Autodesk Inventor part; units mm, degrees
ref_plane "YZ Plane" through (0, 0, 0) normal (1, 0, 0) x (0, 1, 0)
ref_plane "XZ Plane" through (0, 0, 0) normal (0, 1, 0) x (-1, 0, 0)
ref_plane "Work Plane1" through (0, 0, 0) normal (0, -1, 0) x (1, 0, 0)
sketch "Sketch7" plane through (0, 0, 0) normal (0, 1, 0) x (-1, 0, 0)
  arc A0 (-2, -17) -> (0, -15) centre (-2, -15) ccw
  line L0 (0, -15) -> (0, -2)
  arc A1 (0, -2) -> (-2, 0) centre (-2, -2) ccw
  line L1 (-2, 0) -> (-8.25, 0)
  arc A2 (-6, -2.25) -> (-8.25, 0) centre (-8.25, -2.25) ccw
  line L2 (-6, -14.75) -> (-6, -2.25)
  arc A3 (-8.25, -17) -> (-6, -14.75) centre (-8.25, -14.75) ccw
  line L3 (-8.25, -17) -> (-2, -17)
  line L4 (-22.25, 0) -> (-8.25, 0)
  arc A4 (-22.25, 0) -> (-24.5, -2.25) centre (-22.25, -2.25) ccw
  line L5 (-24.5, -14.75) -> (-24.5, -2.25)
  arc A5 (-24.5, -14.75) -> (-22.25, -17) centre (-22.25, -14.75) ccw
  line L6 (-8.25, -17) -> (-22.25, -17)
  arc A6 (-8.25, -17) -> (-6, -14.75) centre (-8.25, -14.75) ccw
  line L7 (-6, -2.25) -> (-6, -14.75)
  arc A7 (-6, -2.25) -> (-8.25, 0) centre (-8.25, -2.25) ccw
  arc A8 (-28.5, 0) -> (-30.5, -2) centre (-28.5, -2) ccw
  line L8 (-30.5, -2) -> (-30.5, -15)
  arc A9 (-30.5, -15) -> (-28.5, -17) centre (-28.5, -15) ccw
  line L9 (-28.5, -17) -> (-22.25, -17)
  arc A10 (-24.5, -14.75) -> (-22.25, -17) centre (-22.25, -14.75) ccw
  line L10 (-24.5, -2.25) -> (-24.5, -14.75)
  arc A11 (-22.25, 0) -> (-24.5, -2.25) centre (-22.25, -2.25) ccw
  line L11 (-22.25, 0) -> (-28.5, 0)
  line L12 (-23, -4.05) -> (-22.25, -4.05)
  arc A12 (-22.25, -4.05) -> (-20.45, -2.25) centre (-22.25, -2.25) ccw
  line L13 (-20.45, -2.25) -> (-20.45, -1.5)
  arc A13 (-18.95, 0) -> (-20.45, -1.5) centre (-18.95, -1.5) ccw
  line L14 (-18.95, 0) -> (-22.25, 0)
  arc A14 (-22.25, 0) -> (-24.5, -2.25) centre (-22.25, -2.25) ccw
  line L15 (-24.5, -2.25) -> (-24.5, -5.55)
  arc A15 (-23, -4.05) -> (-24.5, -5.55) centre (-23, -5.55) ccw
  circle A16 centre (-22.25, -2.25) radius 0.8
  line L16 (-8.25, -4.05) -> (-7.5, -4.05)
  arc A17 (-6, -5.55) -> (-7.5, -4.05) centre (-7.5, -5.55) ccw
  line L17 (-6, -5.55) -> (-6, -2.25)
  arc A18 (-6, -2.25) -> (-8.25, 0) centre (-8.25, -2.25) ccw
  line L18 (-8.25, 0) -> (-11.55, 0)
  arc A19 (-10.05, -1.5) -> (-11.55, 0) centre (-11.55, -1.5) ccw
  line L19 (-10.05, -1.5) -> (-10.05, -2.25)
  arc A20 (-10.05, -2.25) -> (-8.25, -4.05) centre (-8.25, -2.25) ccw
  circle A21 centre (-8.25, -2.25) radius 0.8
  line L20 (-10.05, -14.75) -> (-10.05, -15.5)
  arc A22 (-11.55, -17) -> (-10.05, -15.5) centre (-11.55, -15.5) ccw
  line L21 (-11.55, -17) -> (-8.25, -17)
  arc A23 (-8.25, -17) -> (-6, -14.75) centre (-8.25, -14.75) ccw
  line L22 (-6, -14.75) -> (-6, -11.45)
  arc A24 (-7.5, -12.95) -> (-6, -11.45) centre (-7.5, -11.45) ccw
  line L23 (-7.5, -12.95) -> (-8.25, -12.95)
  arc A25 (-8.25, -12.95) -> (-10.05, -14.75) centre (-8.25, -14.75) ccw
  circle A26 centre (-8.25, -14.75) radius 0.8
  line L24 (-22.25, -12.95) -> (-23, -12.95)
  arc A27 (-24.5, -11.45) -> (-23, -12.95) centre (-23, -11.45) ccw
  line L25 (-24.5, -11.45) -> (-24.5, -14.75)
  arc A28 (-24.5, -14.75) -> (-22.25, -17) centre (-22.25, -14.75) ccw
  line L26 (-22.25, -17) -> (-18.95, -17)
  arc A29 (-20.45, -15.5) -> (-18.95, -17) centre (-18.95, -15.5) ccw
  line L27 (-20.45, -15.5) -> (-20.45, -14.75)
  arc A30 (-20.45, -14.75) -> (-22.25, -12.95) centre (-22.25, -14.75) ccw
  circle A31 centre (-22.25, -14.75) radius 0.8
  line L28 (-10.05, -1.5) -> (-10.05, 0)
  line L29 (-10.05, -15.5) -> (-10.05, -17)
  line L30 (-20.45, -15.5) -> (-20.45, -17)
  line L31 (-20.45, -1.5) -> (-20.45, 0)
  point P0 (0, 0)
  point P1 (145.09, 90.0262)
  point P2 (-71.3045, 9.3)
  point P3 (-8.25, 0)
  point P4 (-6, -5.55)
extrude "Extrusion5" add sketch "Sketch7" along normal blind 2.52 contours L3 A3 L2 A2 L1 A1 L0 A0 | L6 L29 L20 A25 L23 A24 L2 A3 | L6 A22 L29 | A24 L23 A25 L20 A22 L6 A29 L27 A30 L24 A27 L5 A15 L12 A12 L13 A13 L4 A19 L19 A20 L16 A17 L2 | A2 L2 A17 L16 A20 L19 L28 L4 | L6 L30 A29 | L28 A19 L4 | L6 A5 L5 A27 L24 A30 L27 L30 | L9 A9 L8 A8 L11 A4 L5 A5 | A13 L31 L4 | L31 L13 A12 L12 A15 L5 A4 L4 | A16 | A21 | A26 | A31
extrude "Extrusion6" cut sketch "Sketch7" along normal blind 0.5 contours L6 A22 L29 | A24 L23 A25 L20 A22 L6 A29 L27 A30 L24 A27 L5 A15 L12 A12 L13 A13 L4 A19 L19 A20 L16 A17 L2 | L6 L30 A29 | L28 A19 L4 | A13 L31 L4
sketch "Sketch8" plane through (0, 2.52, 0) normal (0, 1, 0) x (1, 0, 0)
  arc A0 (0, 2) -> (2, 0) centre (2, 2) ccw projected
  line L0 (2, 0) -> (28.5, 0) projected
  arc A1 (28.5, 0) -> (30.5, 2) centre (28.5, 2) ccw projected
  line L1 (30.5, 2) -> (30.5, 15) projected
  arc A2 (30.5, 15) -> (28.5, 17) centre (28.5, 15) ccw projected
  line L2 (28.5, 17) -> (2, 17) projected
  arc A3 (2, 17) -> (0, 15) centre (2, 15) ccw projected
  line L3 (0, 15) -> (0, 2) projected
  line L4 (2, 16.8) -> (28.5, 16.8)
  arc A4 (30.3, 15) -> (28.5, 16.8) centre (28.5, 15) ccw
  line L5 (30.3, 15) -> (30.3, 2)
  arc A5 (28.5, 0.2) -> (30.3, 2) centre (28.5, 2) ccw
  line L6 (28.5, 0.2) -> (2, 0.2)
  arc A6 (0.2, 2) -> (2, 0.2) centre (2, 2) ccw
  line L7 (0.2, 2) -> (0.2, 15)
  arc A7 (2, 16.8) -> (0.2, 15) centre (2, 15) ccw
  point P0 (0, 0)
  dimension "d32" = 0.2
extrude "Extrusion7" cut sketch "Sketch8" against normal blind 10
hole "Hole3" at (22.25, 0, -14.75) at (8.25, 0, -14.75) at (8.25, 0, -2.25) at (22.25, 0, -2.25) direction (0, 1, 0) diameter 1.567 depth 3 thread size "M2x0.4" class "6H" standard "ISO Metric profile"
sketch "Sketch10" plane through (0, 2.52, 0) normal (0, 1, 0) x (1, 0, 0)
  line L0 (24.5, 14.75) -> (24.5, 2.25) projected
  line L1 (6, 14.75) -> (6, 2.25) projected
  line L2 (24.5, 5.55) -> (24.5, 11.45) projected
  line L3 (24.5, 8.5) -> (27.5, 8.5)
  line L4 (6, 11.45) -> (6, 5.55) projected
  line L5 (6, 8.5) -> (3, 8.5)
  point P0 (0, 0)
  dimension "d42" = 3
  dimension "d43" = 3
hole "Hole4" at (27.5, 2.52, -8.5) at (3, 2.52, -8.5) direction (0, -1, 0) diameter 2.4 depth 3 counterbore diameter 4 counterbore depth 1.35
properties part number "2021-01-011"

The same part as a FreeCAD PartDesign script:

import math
import FreeCAD as App
import Part
import Sketcher
Q = App.Units.Quantity

doc = App.newDocument("Part")
params = doc.addObject("Spreadsheet::Sheet", "Params")
for row, (alias, value) in enumerate([
    ("sketch1_radius", "2 mm"),
    ("sketch1_height", "13 mm"),
    ("sketch1_width", "26.5 mm"),
    ("pad1_length", "2.52 mm"),
    ("sketch2_radius", "1.8 mm"),
    ("sketch2_radius2", "1.5 mm"),
    ("sketch2_width", "10.4 mm"),
    ("sketch2_height", "5.9 mm"),
    ("pocket1_length", "0.5 mm"),
    ("sketch3_radius", "2 mm"),
    ("sketch3_height", "13 mm"),
    ("sketch3_width", "26.5 mm"),
    ("pocket2_length", "10 mm"),
    ("hole_diameter", "1.567 mm"),
    ("hole_depth", "3 mm"),
    ("sketch5_diameter", "2.4 mm"),
    ("hole2_diameter", "2.4 mm"),
    ("hole2_depth", "3 mm"),
    ("hole2_cbore_diameter", "4 mm"),
    ("hole2_cbore_depth", "1.35 mm"),
], start=1):
    params.set(f"A{row}", alias)
    params.set(f"B{row}", "=" + value)
    params.setAlias(f"B{row}", alias)

body = doc.addObject("PartDesign::Body", "Body")

# Sketch on XZ plane
sketch1 = body.newObject("Sketcher::SketchObject", "Sketch")
sketch1.AttachmentSupport = (doc.getObject("XZ_Plane"), [""])
sketch1.MapMode = "FlatFace"
sketch1.addGeometry([
    Part.ArcOfCircle(Part.Circle(App.Vector(2, -15, 0), App.Vector(0, 0, 1), 2), math.radians(180), math.radians(270)),  # 0
    Part.LineSegment(App.Vector(0, -15, 0), App.Vector(0, -2, 0)),  # 1
    Part.ArcOfCircle(Part.Circle(App.Vector(2, -2, 0), App.Vector(0, 0, 1), 2), math.radians(90), math.radians(180)),  # 2
    Part.LineSegment(App.Vector(2, 0, 0), App.Vector(28.5, 0, 0)),  # 3
    Part.ArcOfCircle(Part.Circle(App.Vector(28.5, -2, 0), App.Vector(0, 0, 1), 2), math.radians(0), math.radians(90)),  # 4
    Part.LineSegment(App.Vector(30.5, -2, 0), App.Vector(30.5, -15, 0)),  # 5
    Part.ArcOfCircle(Part.Circle(App.Vector(28.5, -15, 0), App.Vector(0, 0, 1), 2), math.radians(-90), math.radians(0)),  # 6
    Part.LineSegment(App.Vector(28.5, -17, 0), App.Vector(2, -17, 0)),  # 7
], False)
sketch1.addConstraint([
    Sketcher.Constraint("Tangent", 0, 1, 1, 1),
    Sketcher.Constraint("Tangent", 1, 2, 2, 2),
    Sketcher.Constraint("Tangent", 2, 1, 3, 1),
    Sketcher.Constraint("Tangent", 3, 2, 4, 2),
    Sketcher.Constraint("Tangent", 4, 1, 5, 1),
    Sketcher.Constraint("Tangent", 5, 2, 6, 2),
    Sketcher.Constraint("Tangent", 6, 1, 7, 1),
    Sketcher.Constraint("Tangent", 7, 2, 0, 2),
    Sketcher.Constraint("Vertical", 1),
    Sketcher.Constraint("Horizontal", 3),
    Sketcher.Constraint("Vertical", 5),
    Sketcher.Constraint("Horizontal", 7),
    Sketcher.Constraint("Equal", 0, 2),
    Sketcher.Constraint("Equal", 2, 4),
    Sketcher.Constraint("Equal", 4, 6),
    Sketcher.Constraint("PointOnObject", 0, 1, -2),
    Sketcher.Constraint("PointOnObject", 2, 1, -1),
    Sketcher.Constraint("Radius", 0, Q("2 mm")),
    Sketcher.Constraint("DistanceY", 1, 1, 1, 2, Q("13 mm")),
    Sketcher.Constraint("DistanceX", 3, 1, 3, 2, Q("26.5 mm")),
])
sketch1.setExpression("Constraints[17]", "Params.sketch1_radius")
sketch1.setExpression("Constraints[18]", "Params.sketch1_height")
sketch1.setExpression("Constraints[19]", "Params.sketch1_width")
pad1 = body.newObject("PartDesign::Pad", "Pad")
pad1.Profile = sketch1
pad1.setExpression("Length", "Params.pad1_length")
pad1.Reversed = True

# Sketch on XZ plane
sketch2 = body.newObject("Sketcher::SketchObject", "Sketch001")
sketch2.AttachmentSupport = (doc.getObject("XZ_Plane"), [""])
sketch2.MapMode = "FlatFace"
sketch2.addGeometry([
    Part.LineSegment(App.Vector(10.1, -17, 0), App.Vector(10.1, -14.8, 0)),  # 0
    Part.ArcOfCircle(Part.Circle(App.Vector(8.2, -14.8, 0), App.Vector(0, 0, 1), 1.8), math.radians(0), math.radians(90)),  # 1
    Part.LineSegment(App.Vector(8.2, -12.9, 0), App.Vector(7.5, -12.9, 0)),  # 2
    Part.ArcOfCircle(Part.Circle(App.Vector(7.5, -11.4, 0), App.Vector(0, 0, 1), 1.5), math.radians(180), math.radians(270)),  # 3
    Part.LineSegment(App.Vector(6, -11.4, 0), App.Vector(6, -5.5, 0)),  # 4
    Part.ArcOfCircle(Part.Circle(App.Vector(7.5, -5.5, 0), App.Vector(0, 0, 1), 1.5), math.radians(90), math.radians(180)),  # 5
    Part.LineSegment(App.Vector(7.5, -4, 0), App.Vector(8.2, -4, 0)),  # 6
    Part.ArcOfCircle(Part.Circle(App.Vector(8.2, -2.2, 0), App.Vector(0, 0, 1), 1.8), math.radians(-90), math.radians(0)),  # 7
    Part.LineSegment(App.Vector(10.1, -2.2, 0), App.Vector(10.1, 0, 0)),  # 8
    Part.LineSegment(App.Vector(10.1, 0, 0), App.Vector(20.4, 0, 0)),  # 9
    Part.LineSegment(App.Vector(20.4, 0, 0), App.Vector(20.4, -2.2, 0)),  # 10
    Part.ArcOfCircle(Part.Circle(App.Vector(22.2, -2.2, 0), App.Vector(0, 0, 1), 1.8), math.radians(180), math.radians(270)),  # 11
    Part.LineSegment(App.Vector(22.2, -4, 0), App.Vector(23, -4, 0)),  # 12
    Part.ArcOfCircle(Part.Circle(App.Vector(23, -5.5, 0), App.Vector(0, 0, 1), 1.5), math.radians(0), math.radians(90)),  # 13
    Part.LineSegment(App.Vector(24.5, -5.5, 0), App.Vector(24.5, -11.4, 0)),  # 14
    Part.ArcOfCircle(Part.Circle(App.Vector(23, -11.4, 0), App.Vector(0, 0, 1), 1.5), math.radians(-90), math.radians(0)),  # 15
    Part.LineSegment(App.Vector(23, -12.9, 0), App.Vector(22.2, -12.9, 0)),  # 16
    Part.ArcOfCircle(Part.Circle(App.Vector(22.2, -14.8, 0), App.Vector(0, 0, 1), 1.8), math.radians(90), math.radians(180)),  # 17
    Part.LineSegment(App.Vector(20.4, -14.8, 0), App.Vector(20.4, -17, 0)),  # 18
    Part.LineSegment(App.Vector(20.4, -17, 0), App.Vector(10.1, -17, 0)),  # 19
], False)
sketch2.addConstraint([
    Sketcher.Constraint("Tangent", 0, 2, 1, 1),
    Sketcher.Constraint("Tangent", 1, 2, 2, 1),
    Sketcher.Constraint("Tangent", 2, 2, 3, 2),
    Sketcher.Constraint("Tangent", 3, 1, 4, 1),
    Sketcher.Constraint("Tangent", 4, 2, 5, 2),
    Sketcher.Constraint("Tangent", 5, 1, 6, 1),
    Sketcher.Constraint("Tangent", 6, 2, 7, 1),
    Sketcher.Constraint("Tangent", 7, 2, 8, 1),
    Sketcher.Constraint("Coincident", 8, 2, 9, 1),
    Sketcher.Constraint("Coincident", 9, 2, 10, 1),
    Sketcher.Constraint("Tangent", 10, 2, 11, 1),
    Sketcher.Constraint("Tangent", 11, 2, 12, 1),
    Sketcher.Constraint("Tangent", 12, 2, 13, 2),
    Sketcher.Constraint("Tangent", 13, 1, 14, 1),
    Sketcher.Constraint("Tangent", 14, 2, 15, 2),
    Sketcher.Constraint("Tangent", 15, 1, 16, 1),
    Sketcher.Constraint("Tangent", 16, 2, 17, 1),
    Sketcher.Constraint("Tangent", 17, 2, 18, 1),
    Sketcher.Constraint("Coincident", 18, 2, 19, 1),
    Sketcher.Constraint("Coincident", 19, 2, 0, 1),
    Sketcher.Constraint("Vertical", 0),
    Sketcher.Constraint("Horizontal", 2),
    Sketcher.Constraint("Vertical", 4),
    Sketcher.Constraint("Horizontal", 6),
    Sketcher.Constraint("Vertical", 8),
    Sketcher.Constraint("Horizontal", 9),
    Sketcher.Constraint("Vertical", 10),
    Sketcher.Constraint("Horizontal", 12),
    Sketcher.Constraint("Vertical", 14),
    Sketcher.Constraint("Horizontal", 16),
    Sketcher.Constraint("Vertical", 18),
    Sketcher.Constraint("Horizontal", 19),
    Sketcher.Constraint("Equal", 3, 5),
    Sketcher.Constraint("Equal", 1, 7),
    Sketcher.Constraint("Equal", 7, 11),
    Sketcher.Constraint("Equal", 5, 13),
    Sketcher.Constraint("Equal", 13, 15),
    Sketcher.Constraint("Equal", 11, 17),
    Sketcher.Constraint("PointOnObject", 8, 2, -1),
    Sketcher.Constraint("Horizontal", 7, 3, 11, 3),
    Sketcher.Constraint("Horizontal", 3, 3, 15, 3),
    Sketcher.Constraint("Vertical", 1, 3, 7, 3),
    Sketcher.Constraint("Vertical", 11, 3, 17, 3),
    Sketcher.Constraint("Equal", 6, 12),
    Sketcher.Constraint("Equal", 0, 8),
    Sketcher.Constraint("Radius", 1, Q("1.8 mm")),
    Sketcher.Constraint("Radius", 3, Q("1.5 mm")),
    Sketcher.Constraint("DistanceX", 9, 1, 9, 2, Q("10.4 mm")),
    Sketcher.Constraint("DistanceY", 4, 1, 4, 2, Q("5.9 mm")),
    Sketcher.Constraint("DistanceX", -1, 1, 13, 3, Q("23 mm")),
    Sketcher.Constraint("DistanceX", -1, 1, 3, 1, Q("6 mm")),
    Sketcher.Constraint("DistanceY", 18, 2, -1, 1, Q("17 mm")),
])
sketch2.setExpression("Constraints[45]", "Params.sketch2_radius")
sketch2.setExpression("Constraints[46]", "Params.sketch2_radius2")
sketch2.setExpression("Constraints[47]", "Params.sketch2_width")
sketch2.setExpression("Constraints[48]", "Params.sketch2_height")
pocket1 = body.newObject("PartDesign::Pocket", "Pocket")
pocket1.Profile = sketch2
pocket1.setExpression("Length", "Params.pocket1_length")

# Sketch on XZ plane
sketch3 = body.newObject("Sketcher::SketchObject", "Sketch002")
sketch3.AttachmentSupport = (doc.getObject("XZ_Plane"), [""])
sketch3.MapMode = "FlatFace"
sketch3.AttachmentOffset = App.Placement(App.Vector(0, 0, -2.52), App.Rotation())
sketch3.addGeometry([
    Part.LineSegment(App.Vector(0, -15, 0), App.Vector(0, -2, 0)),  # 0
    Part.ArcOfCircle(Part.Circle(App.Vector(2, -2, 0), App.Vector(0, 0, 1), 2), math.radians(90), math.radians(180)),  # 1
    Part.LineSegment(App.Vector(2, 0, 0), App.Vector(28.5, 0, 0)),  # 2
    Part.ArcOfCircle(Part.Circle(App.Vector(28.5, -2, 0), App.Vector(0, 0, 1), 2), math.radians(0), math.radians(90)),  # 3
    Part.LineSegment(App.Vector(30.5, -2, 0), App.Vector(30.5, -15, 0)),  # 4
    Part.ArcOfCircle(Part.Circle(App.Vector(28.5, -15, 0), App.Vector(0, 0, 1), 2), math.radians(-90), math.radians(0)),  # 5
    Part.LineSegment(App.Vector(28.5, -17, 0), App.Vector(2, -17, 0)),  # 6
    Part.ArcOfCircle(Part.Circle(App.Vector(2, -15, 0), App.Vector(0, 0, 1), 2), math.radians(180), math.radians(270)),  # 7
    Part.ArcOfCircle(Part.Circle(App.Vector(2, -15, 0), App.Vector(0, 0, 1), 1.8), math.radians(180), math.radians(270)),  # 8
    Part.LineSegment(App.Vector(2, -16.8, 0), App.Vector(28.5, -16.8, 0)),  # 9
    Part.ArcOfCircle(Part.Circle(App.Vector(28.5, -15, 0), App.Vector(0, 0, 1), 1.8), math.radians(-90), math.radians(0)),  # 10
    Part.LineSegment(App.Vector(30.3, -15, 0), App.Vector(30.3, -2, 0)),  # 11
    Part.ArcOfCircle(Part.Circle(App.Vector(28.5, -2, 0), App.Vector(0, 0, 1), 1.8), math.radians(0), math.radians(90)),  # 12
    Part.LineSegment(App.Vector(28.5, -0.2, 0), App.Vector(2, -0.2, 0)),  # 13
    Part.ArcOfCircle(Part.Circle(App.Vector(2, -2, 0), App.Vector(0, 0, 1), 1.8), math.radians(90), math.radians(180)),  # 14
    Part.LineSegment(App.Vector(0.2, -2, 0), App.Vector(0.2, -15, 0)),  # 15
], False)
sketch3.addConstraint([
    Sketcher.Constraint("Tangent", 0, 2, 1, 2),
    Sketcher.Constraint("Tangent", 1, 1, 2, 1),
    Sketcher.Constraint("Tangent", 2, 2, 3, 2),
    Sketcher.Constraint("Tangent", 3, 1, 4, 1),
    Sketcher.Constraint("Tangent", 4, 2, 5, 2),
    Sketcher.Constraint("Tangent", 5, 1, 6, 1),
    Sketcher.Constraint("Tangent", 6, 2, 7, 2),
    Sketcher.Constraint("Tangent", 7, 1, 0, 1),
    Sketcher.Constraint("Tangent", 8, 2, 9, 1),
    Sketcher.Constraint("Tangent", 9, 2, 10, 1),
    Sketcher.Constraint("Tangent", 10, 2, 11, 1),
    Sketcher.Constraint("Tangent", 11, 2, 12, 1),
    Sketcher.Constraint("Tangent", 12, 2, 13, 1),
    Sketcher.Constraint("Tangent", 13, 2, 14, 1),
    Sketcher.Constraint("Tangent", 14, 2, 15, 1),
    Sketcher.Constraint("Tangent", 15, 2, 8, 1),
    Sketcher.Constraint("Vertical", 0),
    Sketcher.Constraint("Horizontal", 2),
    Sketcher.Constraint("Vertical", 4),
    Sketcher.Constraint("Horizontal", 6),
    Sketcher.Constraint("Horizontal", 9),
    Sketcher.Constraint("Vertical", 11),
    Sketcher.Constraint("Horizontal", 13),
    Sketcher.Constraint("Vertical", 15),
    Sketcher.Constraint("Coincident", 8, 3, 7, 3),
    Sketcher.Constraint("Coincident", 10, 3, 5, 3),
    Sketcher.Constraint("Coincident", 12, 3, 3, 3),
    Sketcher.Constraint("Equal", 1, 3),
    Sketcher.Constraint("Equal", 3, 5),
    Sketcher.Constraint("Equal", 5, 7),
    Sketcher.Constraint("Equal", 12, 14),
    Sketcher.Constraint("PointOnObject", 0, 2, -2),
    Sketcher.Constraint("PointOnObject", 1, 1, -1),
    Sketcher.Constraint("Radius", 1, Q("2 mm")),
    Sketcher.Constraint("DistanceY", 12, 2, -1, 1, Q("0.2 mm")),
    Sketcher.Constraint("DistanceY", 0, 1, 0, 2, Q("13 mm")),
    Sketcher.Constraint("DistanceX", 2, 1, 2, 2, Q("26.5 mm")),
])
sketch3.setExpression("Constraints[33]", "Params.sketch3_radius")
sketch3.setExpression("Constraints[35]", "Params.sketch3_height")
sketch3.setExpression("Constraints[36]", "Params.sketch3_width")
pocket2 = body.newObject("PartDesign::Pocket", "Pocket001")
pocket2.Profile = sketch3
pocket2.setExpression("Length", "Params.pocket2_length")
pocket2.Reversed = True

# Sketch on XZ plane
sketch4 = body.newObject("Sketcher::SketchObject", "Sketch003")
sketch4.AttachmentSupport = (doc.getObject("XZ_Plane"), [""])
sketch4.MapMode = "FlatFace"
sketch4.addGeometry([
    Part.Circle(App.Vector(22.2, -14.8, 0), App.Vector(0, 0, 1), 0.8),
    Part.Circle(App.Vector(8.2, -14.8, 0), App.Vector(0, 0, 1), 0.8),
    Part.Circle(App.Vector(8.2, -2.2, 0), App.Vector(0, 0, 1), 0.8),
    Part.Circle(App.Vector(22.2, -2.2, 0), App.Vector(0, 0, 1), 0.8),
], False)
sketch4.addConstraint([
    Sketcher.Constraint("Equal", 0, 1),
    Sketcher.Constraint("Equal", 1, 2),
    Sketcher.Constraint("Equal", 2, 3),
    Sketcher.Constraint("Horizontal", 0, 3, 1, 3),
    Sketcher.Constraint("Horizontal", 2, 3, 3, 3),
    Sketcher.Constraint("Vertical", 1, 3, 2, 3),
    Sketcher.Constraint("Vertical", 0, 3, 3, 3),
    Sketcher.Constraint("Diameter", 0, Q("1.567 mm")),
    Sketcher.Constraint("DistanceX", 1, 3, 0, 3, Q("14 mm")),
    Sketcher.Constraint("DistanceY", 1, 3, 2, 3, Q("12.5 mm")),
    Sketcher.Constraint("DistanceX", -1, 1, 0, 3, Q("22.25 mm")),
    Sketcher.Constraint("DistanceY", 0, 3, -1, 1, Q("14.75 mm")),
])
doc.recompute()
hole = body.newObject("PartDesign::Hole", "Hole")
hole.Profile = sketch4
hole.ThreadType = "None"
hole.setExpression("Diameter", "Params.hole_diameter")
hole.DepthType = "Dimension"
hole.setExpression("Depth", "Params.hole_depth")
hole.DrillPoint = "Flat"

# Sketch on XZ plane
sketch5 = body.newObject("Sketcher::SketchObject", "Sketch004")
sketch5.AttachmentSupport = (doc.getObject("XZ_Plane"), [""])
sketch5.MapMode = "FlatFace"
sketch5.AttachmentOffset = App.Placement(App.Vector(0, 0, -2.52), App.Rotation())
sketch5.addGeometry([
    Part.Circle(App.Vector(27.5, -8.5, 0), App.Vector(0, 0, 1), 1.2),
    Part.Circle(App.Vector(3, -8.5, 0), App.Vector(0, 0, 1), 1.2),
], False)
sketch5.addConstraint([
    Sketcher.Constraint("Equal", 0, 1),
    Sketcher.Constraint("Horizontal", 0, 3, 1, 3),
    Sketcher.Constraint("Diameter", 0, Q("2.4 mm")),
    Sketcher.Constraint("DistanceX", -1, 1, 1, 3, Q("3 mm")),
    Sketcher.Constraint("DistanceX", -1, 1, 0, 3, Q("27.5 mm")),
    Sketcher.Constraint("DistanceY", 0, 3, -1, 1, Q("8.5 mm")),
])
sketch5.setExpression("Constraints[2]", "Params.sketch5_diameter")
doc.recompute()
hole2 = body.newObject("PartDesign::Hole", "Hole001")
hole2.Profile = sketch5
hole2.ThreadType = "None"
hole2.setExpression("Diameter", "Params.hole2_diameter")
hole2.DepthType = "Dimension"
hole2.setExpression("Depth", "Params.hole2_depth")
hole2.DrillPoint = "Flat"
hole2.HoleCutType = "Counterbore"
hole2.setExpression("HoleCutDiameter", "Params.hole2_cbore_diameter")
hole2.setExpression("HoleCutDepth", "Params.hole2_cbore_depth")
hole2.Reversed = True

doc.recompute()
